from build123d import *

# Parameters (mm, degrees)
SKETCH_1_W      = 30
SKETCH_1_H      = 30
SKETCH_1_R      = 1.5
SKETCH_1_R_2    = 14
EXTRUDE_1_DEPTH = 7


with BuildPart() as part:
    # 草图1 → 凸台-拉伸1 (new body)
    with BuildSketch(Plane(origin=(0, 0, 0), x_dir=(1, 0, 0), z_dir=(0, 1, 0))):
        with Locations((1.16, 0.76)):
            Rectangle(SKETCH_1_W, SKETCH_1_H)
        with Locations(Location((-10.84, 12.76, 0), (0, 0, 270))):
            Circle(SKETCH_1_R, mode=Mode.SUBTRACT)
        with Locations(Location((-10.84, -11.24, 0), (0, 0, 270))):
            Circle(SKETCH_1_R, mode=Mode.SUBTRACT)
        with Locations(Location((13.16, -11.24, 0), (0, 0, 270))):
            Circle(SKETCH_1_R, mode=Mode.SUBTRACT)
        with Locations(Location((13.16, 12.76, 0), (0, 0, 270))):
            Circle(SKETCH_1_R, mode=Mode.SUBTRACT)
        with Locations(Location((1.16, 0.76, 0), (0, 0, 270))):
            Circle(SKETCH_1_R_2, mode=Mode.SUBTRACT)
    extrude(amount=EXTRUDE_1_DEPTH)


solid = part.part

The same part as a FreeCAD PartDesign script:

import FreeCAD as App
import Part
import Sketcher
from FreeCAD import Vector


def add_polygon(sketch, points):
    """Adds a closed chain of lines whose ends are joined by coincident constraints."""
    first, n = sketch.GeometryCount, len(points)
    for a, b in zip(points, points[1:] + points[:1]):
        sketch.addGeometry(Part.LineSegment(App.Vector(*a, 0), App.Vector(*b, 0)), False)
    for i in range(n):
        sketch.addConstraint(Sketcher.Constraint("Coincident", first + i, 2, first + (i + 1) % n, 1))

doc = App.newDocument("Part")
body = doc.addObject("PartDesign::Body", "Body")

sketch1 = doc.addObject("Sketcher::SketchObject", "Sketch")
body.addObject(sketch1)
sketch1.AttachmentSupport = (doc.XZ_Plane, [""])
sketch1.MapMode = "FlatFace"
add_polygon(sketch1, [(-13.84, -15.76), (-13.84, 14.24), (16.16, 14.24), (16.16, -15.76)])
sketch1.addGeometry(Part.Circle(Vector(-10.84, 11.24, 0), Vector(0, 0, 1), 1.5), False)
sketch1.addGeometry(Part.Circle(Vector(13.16, 11.24, 0), Vector(0, 0, 1), 1.5), False)
sketch1.addGeometry(Part.Circle(Vector(-10.84, -12.76, 0), Vector(0, 0, 1), 1.5), False)
sketch1.addGeometry(Part.Circle(Vector(1.16, -0.76, 0), Vector(0, 0, 1), 14), False)
sketch1.addGeometry(Part.Circle(Vector(13.16, -12.76, 0), Vector(0, 0, 1), 1.5), False)
sketch1.addConstraint(Sketcher.Constraint("Vertical", 0))
sketch1.addConstraint(Sketcher.Constraint("Horizontal", 1))
sketch1.addConstraint(Sketcher.Constraint("Vertical", 2))
sketch1.addConstraint(Sketcher.Constraint("Horizontal", 3))
sketch1.addConstraint(Sketcher.Constraint("Equal", 4, 5))
sketch1.addConstraint(Sketcher.Constraint("Equal", 5, 6))
sketch1.addConstraint(Sketcher.Constraint("Equal", 6, 8))
sketch1.addConstraint(Sketcher.Constraint("Horizontal", 4, 3, 5, 3))
sketch1.addConstraint(Sketcher.Constraint("Horizontal", 6, 3, 8, 3))
sketch1.addConstraint(Sketcher.Constraint("Vertical", 4, 3, 6, 3))
sketch1.addConstraint(Sketcher.Constraint("Vertical", 5, 3, 8, 3))
sketch1.addConstraint(Sketcher.Constraint("Equal", 3, 0))
sketch1.addConstraint(Sketcher.Constraint("Diameter", 4, 3.0))
sketch1.addConstraint(Sketcher.Constraint("Diameter", 7, 28.0))
sketch1.addConstraint(Sketcher.Constraint("DistanceX", 1, 1, 1, 2, 30.0))
sketch1.addConstraint(Sketcher.Constraint("DistanceX", 4, 3, 5, 3, 24.0))
sketch1.addConstraint(Sketcher.Constraint("DistanceY", 6, 3, 4, 3, 24.0))
sketch1.addConstraint(Sketcher.Constraint("DistanceX", 4, 3, 7, 3, 12.0))
sketch1.addConstraint(Sketcher.Constraint("DistanceY", 7, 3, 4, 3, 12.0))
sketch1.addConstraint(Sketcher.Constraint("DistanceX", 0, 2, 4, 3, 3.0))
sketch1.addConstraint(Sketcher.Constraint("DistanceY", 4, 3, 0, 2, 3.0))
sketch1.addConstraint(Sketcher.Constraint("DistanceX", 4, 3, -1, 1, 10.84))
sketch1.addConstraint(Sketcher.Constraint("DistanceY", -1, 1, 4, 3, 11.24))
pad1 = doc.addObject("PartDesign::Pad", "Pad")
body.addObject(pad1)
pad1.Profile = sketch1
pad1.Length = 7
pad1.Reversed = True

doc.recompute()
